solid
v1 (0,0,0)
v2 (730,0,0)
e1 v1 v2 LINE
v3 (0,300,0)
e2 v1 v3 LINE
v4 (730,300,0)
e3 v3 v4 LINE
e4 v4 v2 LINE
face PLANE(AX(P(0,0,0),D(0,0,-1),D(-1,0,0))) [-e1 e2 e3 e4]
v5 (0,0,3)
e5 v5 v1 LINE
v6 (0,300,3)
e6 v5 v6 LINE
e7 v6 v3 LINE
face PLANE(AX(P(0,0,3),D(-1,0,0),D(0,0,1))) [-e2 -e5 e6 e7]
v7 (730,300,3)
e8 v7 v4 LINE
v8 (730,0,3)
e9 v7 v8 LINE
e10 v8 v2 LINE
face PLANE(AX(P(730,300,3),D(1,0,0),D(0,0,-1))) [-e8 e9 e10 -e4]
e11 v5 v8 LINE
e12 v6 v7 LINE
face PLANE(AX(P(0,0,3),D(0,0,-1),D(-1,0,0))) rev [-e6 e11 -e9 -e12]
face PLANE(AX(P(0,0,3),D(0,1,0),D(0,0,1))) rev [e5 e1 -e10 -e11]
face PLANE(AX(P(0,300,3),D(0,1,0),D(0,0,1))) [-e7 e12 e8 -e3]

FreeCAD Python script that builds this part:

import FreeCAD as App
import Part
import Sketcher
from FreeCAD import Vector
Q = App.Units.Quantity

doc = App.newDocument("Part")
body = doc.addObject("PartDesign::Body", "Body")

# Sketch on XY plane
sketch1 = body.newObject("Sketcher::SketchObject", "Sketch")
sketch1.AttachmentSupport = (doc.getObject("XY_Plane"), [""])
sketch1.MapMode = "FlatFace"
sketch1.addGeometry([
    Part.LineSegment(Vector(0, 300, 0), Vector(0, 0, 0)),
    Part.LineSegment(Vector(0, 0, 0), Vector(730, 0, 0)),
    Part.LineSegment(Vector(730, 0, 0), Vector(730, 300, 0)),
    Part.LineSegment(Vector(730, 300, 0), Vector(0, 300, 0)),
], False)
sketch1.addConstraint([
    Sketcher.Constraint("Coincident", 0, 2, 1, 1),
    Sketcher.Constraint("Coincident", 1, 2, 2, 1),
    Sketcher.Constraint("Coincident", 2, 2, 3, 1),
    Sketcher.Constraint("Coincident", 3, 2, 0, 1),
    Sketcher.Constraint("Vertical", 0),
    Sketcher.Constraint("Horizontal", 1),
    Sketcher.Constraint("Vertical", 2),
    Sketcher.Constraint("Horizontal", 3),
    Sketcher.Constraint("Coincident", 0, 2, -1, 1),
    Sketcher.Constraint("DistanceX", 1, 1, 1, 2, Q("730 mm")),
    Sketcher.Constraint("DistanceY", 0, 2, 0, 1, Q("300 mm")),
])
pad1 = body.newObject("PartDesign::Pad", "Pad")
pad1.Profile = sketch1
pad1.Length = 3

doc.recompute()
